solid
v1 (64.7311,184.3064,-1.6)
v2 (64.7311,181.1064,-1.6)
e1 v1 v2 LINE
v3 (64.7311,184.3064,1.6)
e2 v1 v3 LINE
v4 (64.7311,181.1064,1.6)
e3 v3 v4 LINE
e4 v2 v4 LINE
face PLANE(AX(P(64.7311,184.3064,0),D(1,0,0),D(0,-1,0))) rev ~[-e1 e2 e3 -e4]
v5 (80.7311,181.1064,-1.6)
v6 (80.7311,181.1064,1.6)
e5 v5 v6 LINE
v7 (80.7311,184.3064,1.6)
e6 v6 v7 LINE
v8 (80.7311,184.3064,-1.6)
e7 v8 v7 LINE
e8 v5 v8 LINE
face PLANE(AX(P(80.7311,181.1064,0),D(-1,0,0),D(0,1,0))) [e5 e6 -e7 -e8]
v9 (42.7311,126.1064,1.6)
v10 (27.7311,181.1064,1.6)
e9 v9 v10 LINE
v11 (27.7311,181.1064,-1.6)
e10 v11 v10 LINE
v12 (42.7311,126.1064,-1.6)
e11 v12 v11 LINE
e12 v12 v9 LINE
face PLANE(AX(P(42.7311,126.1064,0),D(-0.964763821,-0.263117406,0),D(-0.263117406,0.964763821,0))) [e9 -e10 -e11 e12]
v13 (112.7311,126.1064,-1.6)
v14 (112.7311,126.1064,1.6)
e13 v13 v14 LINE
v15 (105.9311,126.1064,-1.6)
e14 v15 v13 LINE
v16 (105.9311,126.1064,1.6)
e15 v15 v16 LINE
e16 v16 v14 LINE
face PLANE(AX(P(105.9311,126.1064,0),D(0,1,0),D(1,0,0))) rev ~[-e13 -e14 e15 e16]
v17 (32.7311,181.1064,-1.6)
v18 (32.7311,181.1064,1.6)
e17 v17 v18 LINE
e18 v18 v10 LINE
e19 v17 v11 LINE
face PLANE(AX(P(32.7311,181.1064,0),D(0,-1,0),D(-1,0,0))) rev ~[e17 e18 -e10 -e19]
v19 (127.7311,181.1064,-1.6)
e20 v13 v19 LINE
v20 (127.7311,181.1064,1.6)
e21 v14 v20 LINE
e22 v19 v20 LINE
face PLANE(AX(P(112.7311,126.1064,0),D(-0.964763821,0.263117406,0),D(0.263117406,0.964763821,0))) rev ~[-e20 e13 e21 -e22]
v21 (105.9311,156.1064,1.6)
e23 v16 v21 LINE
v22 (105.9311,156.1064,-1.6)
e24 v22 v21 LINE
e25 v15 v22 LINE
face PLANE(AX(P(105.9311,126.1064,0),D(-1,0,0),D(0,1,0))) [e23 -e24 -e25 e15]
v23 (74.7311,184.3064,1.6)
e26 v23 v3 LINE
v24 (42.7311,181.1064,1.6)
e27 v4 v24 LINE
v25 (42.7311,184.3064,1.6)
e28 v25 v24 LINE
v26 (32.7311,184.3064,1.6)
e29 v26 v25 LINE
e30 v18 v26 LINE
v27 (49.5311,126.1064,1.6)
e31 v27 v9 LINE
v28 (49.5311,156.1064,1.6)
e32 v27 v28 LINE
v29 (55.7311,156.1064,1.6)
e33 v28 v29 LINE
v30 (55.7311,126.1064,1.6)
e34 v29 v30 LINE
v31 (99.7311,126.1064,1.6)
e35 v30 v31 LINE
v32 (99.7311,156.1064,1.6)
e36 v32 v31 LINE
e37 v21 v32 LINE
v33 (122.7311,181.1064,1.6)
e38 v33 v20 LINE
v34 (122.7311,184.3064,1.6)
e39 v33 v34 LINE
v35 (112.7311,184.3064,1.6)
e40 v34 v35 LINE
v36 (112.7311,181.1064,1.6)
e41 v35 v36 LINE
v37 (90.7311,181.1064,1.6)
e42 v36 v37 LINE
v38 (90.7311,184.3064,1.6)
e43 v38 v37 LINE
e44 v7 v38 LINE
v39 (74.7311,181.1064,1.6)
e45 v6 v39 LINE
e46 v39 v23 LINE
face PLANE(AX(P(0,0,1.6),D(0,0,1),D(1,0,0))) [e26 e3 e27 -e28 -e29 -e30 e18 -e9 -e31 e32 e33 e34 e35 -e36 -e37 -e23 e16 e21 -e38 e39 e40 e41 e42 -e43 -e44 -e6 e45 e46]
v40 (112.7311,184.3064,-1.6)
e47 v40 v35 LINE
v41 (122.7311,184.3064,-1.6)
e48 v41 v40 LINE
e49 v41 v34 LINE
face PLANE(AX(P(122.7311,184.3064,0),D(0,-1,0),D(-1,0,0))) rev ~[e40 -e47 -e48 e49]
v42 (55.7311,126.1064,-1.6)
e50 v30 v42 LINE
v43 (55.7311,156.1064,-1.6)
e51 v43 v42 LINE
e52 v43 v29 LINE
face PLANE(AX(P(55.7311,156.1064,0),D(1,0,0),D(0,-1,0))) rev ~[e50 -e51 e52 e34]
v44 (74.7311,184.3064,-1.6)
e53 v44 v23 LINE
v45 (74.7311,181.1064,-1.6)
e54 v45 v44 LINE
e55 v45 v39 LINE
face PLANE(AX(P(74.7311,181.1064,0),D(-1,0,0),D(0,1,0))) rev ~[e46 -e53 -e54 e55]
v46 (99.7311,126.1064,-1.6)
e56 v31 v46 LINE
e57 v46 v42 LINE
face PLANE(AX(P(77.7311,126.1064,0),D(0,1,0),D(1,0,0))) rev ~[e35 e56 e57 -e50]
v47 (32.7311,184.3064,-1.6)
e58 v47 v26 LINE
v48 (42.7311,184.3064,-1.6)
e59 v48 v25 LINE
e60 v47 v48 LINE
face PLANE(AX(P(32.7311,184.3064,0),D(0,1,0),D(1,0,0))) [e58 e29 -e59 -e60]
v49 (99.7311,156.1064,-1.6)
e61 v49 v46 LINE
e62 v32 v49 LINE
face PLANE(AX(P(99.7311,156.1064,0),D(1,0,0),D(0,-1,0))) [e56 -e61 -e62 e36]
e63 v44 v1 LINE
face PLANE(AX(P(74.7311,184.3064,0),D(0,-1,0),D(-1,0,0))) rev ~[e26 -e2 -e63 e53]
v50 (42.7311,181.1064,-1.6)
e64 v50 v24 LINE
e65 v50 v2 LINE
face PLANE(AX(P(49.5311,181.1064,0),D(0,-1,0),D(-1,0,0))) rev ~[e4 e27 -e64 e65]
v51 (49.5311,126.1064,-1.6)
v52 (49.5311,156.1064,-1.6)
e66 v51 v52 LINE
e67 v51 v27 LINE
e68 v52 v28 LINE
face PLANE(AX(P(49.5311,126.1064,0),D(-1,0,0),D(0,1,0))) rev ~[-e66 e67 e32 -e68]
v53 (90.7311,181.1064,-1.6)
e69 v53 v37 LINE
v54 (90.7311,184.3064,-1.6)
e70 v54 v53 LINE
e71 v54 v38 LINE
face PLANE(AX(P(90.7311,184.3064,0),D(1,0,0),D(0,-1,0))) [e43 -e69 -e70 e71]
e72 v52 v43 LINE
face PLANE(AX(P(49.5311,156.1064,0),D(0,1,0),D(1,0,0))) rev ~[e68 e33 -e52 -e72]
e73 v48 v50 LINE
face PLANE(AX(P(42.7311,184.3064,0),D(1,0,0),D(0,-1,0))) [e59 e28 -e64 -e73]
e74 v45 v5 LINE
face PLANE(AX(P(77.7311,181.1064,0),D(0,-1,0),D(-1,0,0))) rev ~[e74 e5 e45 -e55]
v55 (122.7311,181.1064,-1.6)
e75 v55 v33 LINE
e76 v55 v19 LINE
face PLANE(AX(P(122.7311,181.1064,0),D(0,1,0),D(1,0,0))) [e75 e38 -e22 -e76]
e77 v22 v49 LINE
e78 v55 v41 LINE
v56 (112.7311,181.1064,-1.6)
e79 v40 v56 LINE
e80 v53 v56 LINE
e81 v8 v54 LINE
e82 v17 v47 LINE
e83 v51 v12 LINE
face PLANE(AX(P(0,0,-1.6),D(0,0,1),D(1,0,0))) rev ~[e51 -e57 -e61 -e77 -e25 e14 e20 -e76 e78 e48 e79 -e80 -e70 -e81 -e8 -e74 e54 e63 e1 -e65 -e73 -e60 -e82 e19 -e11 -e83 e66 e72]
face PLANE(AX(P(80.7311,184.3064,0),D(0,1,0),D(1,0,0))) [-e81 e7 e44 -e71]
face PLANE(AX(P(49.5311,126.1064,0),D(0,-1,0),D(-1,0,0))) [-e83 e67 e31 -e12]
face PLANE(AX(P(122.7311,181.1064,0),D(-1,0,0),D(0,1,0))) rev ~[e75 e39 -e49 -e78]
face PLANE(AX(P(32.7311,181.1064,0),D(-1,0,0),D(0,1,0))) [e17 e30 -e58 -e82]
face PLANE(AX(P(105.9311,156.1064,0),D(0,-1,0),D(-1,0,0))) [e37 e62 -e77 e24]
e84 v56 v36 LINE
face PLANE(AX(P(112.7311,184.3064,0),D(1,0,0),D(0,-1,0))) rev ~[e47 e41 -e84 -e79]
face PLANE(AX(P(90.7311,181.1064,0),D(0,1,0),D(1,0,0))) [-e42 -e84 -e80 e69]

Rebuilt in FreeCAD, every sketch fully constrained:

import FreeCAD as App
import Part
import Sketcher

V = App.Vector


def add_polygon(sketch, points):
    """Adds a closed chain of lines whose ends are joined by coincident constraints."""
    first, n = sketch.GeometryCount, len(points)
    for a, b in zip(points, points[1:] + points[:1]):
        sketch.addGeometry(Part.LineSegment(App.Vector(*a, 0), App.Vector(*b, 0)), False)
    for i in range(n):
        sketch.addConstraint(Sketcher.Constraint("Coincident", first + i, 2, first + (i + 1) % n, 1))

doc = App.newDocument("Part")
body = doc.addObject("PartDesign::Body", "Body")

# Sketch on XY plane
sketch1 = body.newObject("Sketcher::SketchObject", "Sketch")
sketch1.AttachmentSupport = (doc.getObject("XY_Plane"), [""])
sketch1.MapMode = "FlatFace"
add_polygon(sketch1, [(99.7, 156.1), (105.9, 156.1), (105.9, 126.1), (112.7, 126.1), (127.7, 181.1), (122.7, 181.1), (122.7, 184.3), (112.7, 184.3), (112.7, 181.1), (90.7, 181.1), (90.7, 184.3), (80.7, 184.3), (80.7, 181.1), (74.7, 181.1), (74.7, 184.3), (64.7, 184.3), (64.7, 181.1), (42.7, 181.1), (42.7, 184.3), (32.7, 184.3), (32.7, 181.1), (27.7, 181.1), (42.7, 126.1), (49.5, 126.1), (49.5, 156.1), (55.7, 156.1), (55.7, 126.1), (99.7, 126.1)])  # lines 0-27
sketch1.addConstraint([
    Sketcher.Constraint("Horizontal", 0),
    Sketcher.Constraint("Vertical", 1),
    Sketcher.Constraint("Horizontal", 2),
    Sketcher.Constraint("Horizontal", 4),
    Sketcher.Constraint("Vertical", 5),
    Sketcher.Constraint("Horizontal", 6),
    Sketcher.Constraint("Vertical", 7),
    Sketcher.Constraint("Horizontal", 8),
    Sketcher.Constraint("Vertical", 9),
    Sketcher.Constraint("Horizontal", 10),
    Sketcher.Constraint("Vertical", 11),
    Sketcher.Constraint("Horizontal", 12),
    Sketcher.Constraint("Vertical", 13),
    Sketcher.Constraint("Horizontal", 14),
    Sketcher.Constraint("Vertical", 15),
    Sketcher.Constraint("Horizontal", 16),
    Sketcher.Constraint("Vertical", 17),
    Sketcher.Constraint("Horizontal", 18),
    Sketcher.Constraint("Vertical", 19),
    Sketcher.Constraint("Horizontal", 20),
    Sketcher.Constraint("Horizontal", 22),
    Sketcher.Constraint("Vertical", 23),
    Sketcher.Constraint("Horizontal", 24),
    Sketcher.Constraint("Vertical", 25),
    Sketcher.Constraint("Horizontal", 26),
    Sketcher.Constraint("Vertical", 27),
    Sketcher.Constraint("Horizontal", 4, 2, 7, 2),
    Sketcher.Constraint("Horizontal", 6, 2, 9, 2),
    Sketcher.Constraint("Horizontal", 8, 2, 11, 2),
    Sketcher.Constraint("Horizontal", 10, 2, 13, 2),
    Sketcher.Constraint("Horizontal", 12, 2, 15, 2),
    Sketcher.Constraint("Horizontal", 14, 2, 17, 2),
    Sketcher.Constraint("Horizontal", 16, 2, 19, 2),
    Sketcher.Constraint("Horizontal", 2, 2, 21, 2),
    Sketcher.Constraint("Horizontal", 0, 2, 23, 2),
    Sketcher.Constraint("Horizontal", 22, 2, 25, 2),
    Sketcher.Constraint("Vertical", 2, 2, 6, 2),
    Sketcher.Constraint("Vertical", 17, 2, 21, 2),
    Sketcher.Constraint("Equal", 6, 10),
    Sketcher.Constraint("Equal", 10, 14),
    Sketcher.Constraint("Equal", 8, 16),
    Sketcher.Constraint("Equal", 14, 18),
    Sketcher.Constraint("Equal", 4, 20),
    Sketcher.Constraint("Equal", 2, 22),
    Sketcher.Constraint("Equal", 0, 24),
    Sketcher.Constraint("DistanceX", 4, 2, 4, 1, 5.0),
    Sketcher.Constraint("DistanceX", 6, 2, 6, 1, 10.0),
    Sketcher.Constraint("DistanceY", 1, 2, 1, 1, 30.0),
    Sketcher.Constraint("DistanceX", 0, 1, 0, 2, 6.2),
    Sketcher.Constraint("DistanceY", 5, 1, 5, 2, 3.2),
    Sketcher.Constraint("DistanceY", 0, 2, 3, 2, 25.0),
    Sketcher.Constraint("DistanceX", 8, 2, 8, 1, 22.0),
    Sketcher.Constraint("DistanceX", 12, 2, 12, 1, 6.0),
    Sketcher.Constraint("DistanceX", 26, 1, 26, 2, 44.0),
    Sketcher.Constraint("DistanceX", -1, 1, 0, 2, 105.931),
    Sketcher.Constraint("DistanceY", -1, 1, 0, 2, 156.1064),
])
pad1 = body.newObject("PartDesign::Pad", "Pad")
pad1.Profile = sketch1
pad1.Length = 3.2
pad1.Midplane = True

doc.recompute()
